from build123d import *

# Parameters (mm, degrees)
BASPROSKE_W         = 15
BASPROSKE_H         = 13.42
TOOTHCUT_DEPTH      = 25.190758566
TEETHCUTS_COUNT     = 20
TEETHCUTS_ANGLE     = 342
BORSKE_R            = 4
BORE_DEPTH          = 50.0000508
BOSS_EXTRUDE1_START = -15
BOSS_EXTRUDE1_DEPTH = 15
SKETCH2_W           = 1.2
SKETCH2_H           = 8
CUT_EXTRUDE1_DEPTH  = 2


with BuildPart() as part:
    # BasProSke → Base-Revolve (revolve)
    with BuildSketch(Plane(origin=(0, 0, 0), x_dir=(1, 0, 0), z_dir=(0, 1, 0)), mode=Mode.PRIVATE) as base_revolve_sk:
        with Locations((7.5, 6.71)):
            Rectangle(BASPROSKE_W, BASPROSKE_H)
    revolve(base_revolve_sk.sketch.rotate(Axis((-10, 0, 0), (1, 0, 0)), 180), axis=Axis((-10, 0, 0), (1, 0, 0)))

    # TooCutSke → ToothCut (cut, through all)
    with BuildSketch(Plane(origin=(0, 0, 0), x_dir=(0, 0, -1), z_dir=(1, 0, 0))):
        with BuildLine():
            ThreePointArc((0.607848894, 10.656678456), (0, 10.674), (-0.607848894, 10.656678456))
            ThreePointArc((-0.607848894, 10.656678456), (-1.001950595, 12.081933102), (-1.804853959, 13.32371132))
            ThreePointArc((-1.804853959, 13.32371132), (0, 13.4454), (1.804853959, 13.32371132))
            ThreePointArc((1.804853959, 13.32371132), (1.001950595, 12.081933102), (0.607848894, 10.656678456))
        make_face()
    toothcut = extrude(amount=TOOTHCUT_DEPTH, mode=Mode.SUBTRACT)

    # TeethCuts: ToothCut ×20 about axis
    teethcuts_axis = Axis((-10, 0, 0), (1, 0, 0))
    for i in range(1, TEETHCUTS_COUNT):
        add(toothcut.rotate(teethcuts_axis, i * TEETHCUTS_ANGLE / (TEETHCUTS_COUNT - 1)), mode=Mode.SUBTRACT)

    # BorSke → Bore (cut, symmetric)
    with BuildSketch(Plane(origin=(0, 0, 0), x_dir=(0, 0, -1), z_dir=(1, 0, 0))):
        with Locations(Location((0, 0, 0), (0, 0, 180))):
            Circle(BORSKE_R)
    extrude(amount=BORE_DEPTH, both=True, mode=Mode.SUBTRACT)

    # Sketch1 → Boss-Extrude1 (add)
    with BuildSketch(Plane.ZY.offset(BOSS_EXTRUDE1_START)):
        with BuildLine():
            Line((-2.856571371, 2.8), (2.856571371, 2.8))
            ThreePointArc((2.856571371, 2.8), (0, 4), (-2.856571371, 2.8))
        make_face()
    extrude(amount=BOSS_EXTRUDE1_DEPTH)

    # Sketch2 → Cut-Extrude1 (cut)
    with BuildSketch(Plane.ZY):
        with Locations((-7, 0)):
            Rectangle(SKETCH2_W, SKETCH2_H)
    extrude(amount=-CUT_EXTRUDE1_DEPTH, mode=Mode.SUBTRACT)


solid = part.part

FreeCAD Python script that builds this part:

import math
import FreeCAD as App
import Part
import Sketcher

V = App.Vector
Q = App.Units.Quantity

doc = App.newDocument("Part")
body = doc.addObject("PartDesign::Body", "Body")

# Sketch on XZ plane
sketch1 = body.newObject("Sketcher::SketchObject", "Sketch")
sketch1.AttachmentSupport = (doc.getObject("XZ_Plane"), [""])
sketch1.MapMode = "FlatFace"
sketch1.addGeometry(Part.LineSegment(V(0, -13, 0), V(0, 0, 0)), False)
sketch1.addGeometry(Part.LineSegment(V(0, 0, 0), V(15, 0, 0)), False)
sketch1.addGeometry(Part.LineSegment(V(15, 0, 0), V(15, -13, 0)), False)
sketch1.addGeometry(Part.LineSegment(V(15, -13, 0), V(0, -13, 0)), False)
sketch1.addConstraint(Sketcher.Constraint("Coincident", 0, 2, 1, 1))
sketch1.addConstraint(Sketcher.Constraint("Coincident", 1, 2, 2, 1))
sketch1.addConstraint(Sketcher.Constraint("Coincident", 2, 2, 3, 1))
sketch1.addConstraint(Sketcher.Constraint("Coincident", 3, 2, 0, 1))
sketch1.addConstraint(Sketcher.Constraint("Vertical", 0))
sketch1.addConstraint(Sketcher.Constraint("Horizontal", 1))
sketch1.addConstraint(Sketcher.Constraint("Vertical", 2))
sketch1.addConstraint(Sketcher.Constraint("Horizontal", 3))
sketch1.addConstraint(Sketcher.Constraint("Coincident", 0, 2, -1, 1))
sketch1.addConstraint(Sketcher.Constraint("DistanceX", 1, 1, 1, 2, Q("15 mm")))
sketch1.addConstraint(Sketcher.Constraint("DistanceY", 0, 1, 0, 2, Q("13.42 mm")))
revolution = body.newObject("PartDesign::Revolution", "Revolution")
revolution.Profile = sketch1
revolution.ReferenceAxis = (sketch1, ["H_Axis"])
revolution.Angle = 360

# Sketch on YZ plane
sketch2 = body.newObject("Sketcher::SketchObject", "Sketch001")
sketch2.AttachmentSupport = (doc.getObject("YZ_Plane"), [""])
sketch2.MapMode = "FlatFace"
sketch2.addGeometry(Part.ArcOfCircle(Part.Circle(V(0, 0, 0), V(0, 0, 1), 10.7), math.radians(-3.26), math.radians(3.26)), False)
sketch2.addGeometry(Part.ArcOfCircle(Part.Circle(V(10.1, -5.5, 0), V(0, 0, 1), 4.9), math.radians(48), math.radians(83)), False)
sketch2.addGeometry(Part.ArcOfCircle(Part.Circle(V(0, 0, 0), V(0, 0, 1), 13.4), math.radians(-7.71), math.radians(7.71)), False)
sketch2.addGeometry(Part.ArcOfCircle(Part.Circle(V(10.1, 5.5, 0), V(0, 0, 1), 4.9), math.radians(-83), math.radians(-48)), False)
sketch2.addConstraint(Sketcher.Constraint("Coincident", 0, 1, 1, 2))
sketch2.addConstraint(Sketcher.Constraint("Coincident", 1, 1, 2, 1))
sketch2.addConstraint(Sketcher.Constraint("Coincident", 2, 2, 3, 2))
sketch2.addConstraint(Sketcher.Constraint("Coincident", 3, 1, 0, 2))
sketch2.addConstraint(Sketcher.Constraint("Coincident", 0, 3, -1, 1))
sketch2.addConstraint(Sketcher.Constraint("Coincident", 2, 3, -1, 1))
sketch2.addConstraint(Sketcher.Constraint("Equal", 1, 3))
sketch2.addConstraint(Sketcher.Constraint("Symmetric", 1, 3, 3, 3, -1))
sketch2.addConstraint(Sketcher.Constraint("Radius", 1, Q("4.88 mm")))
sketch2.addConstraint(Sketcher.Constraint("Radius", 0, Q("10.674 mm")))
sketch2.addConstraint(Sketcher.Constraint("Radius", 2, Q("13.4454 mm")))
sketch2.addConstraint(Sketcher.Constraint("DistanceY", 1, 3, -1, 1, Q("5.454099 mm")))
sketch2.addConstraint(Sketcher.Constraint("DistanceX", -1, 1, 1, 3, Q("10.083741 mm")))
pocket1 = body.newObject("PartDesign::Pocket", "Pocket")
pocket1.Profile = sketch2
pocket1.Type = "ThroughAll"
pocket1.Reversed = True
doc.recompute()

polarpattern = body.newObject("PartDesign::PolarPattern", "PolarPattern")
polarpattern.Originals = [pocket1]
polarpattern.Axis = (doc.getObject("X_Axis"), [""])
polarpattern.Angle = 360
polarpattern.Occurrences = 20
body.Tip = polarpattern

# Sketch on YZ plane
sketch3 = body.newObject("Sketcher::SketchObject", "Sketch002")
sketch3.AttachmentSupport = (doc.getObject("YZ_Plane"), [""])
sketch3.MapMode = "FlatFace"
sketch3.addGeometry(Part.Circle(V(0, 0, 0), V(0, 0, 1), 4), False)
sketch3.addConstraint(Sketcher.Constraint("Coincident", 0, 3, -1, 1))
sketch3.addConstraint(Sketcher.Constraint("Diameter", 0, Q("8 mm")))
pocket2 = body.newObject("PartDesign::Pocket", "Pocket001")
pocket2.Profile = sketch3
pocket2.Length = 100.000102
pocket2.Midplane = True

# Sketch on YZ plane
sketch4 = body.newObject("Sketcher::SketchObject", "Sketch003")
sketch4.AttachmentSupport = (doc.getObject("YZ_Plane"), [""])
sketch4.MapMode = "FlatFace"
sketch4.AttachmentOffset = App.Placement(V(0, 0, 15), App.Rotation())
sketch4.addGeometry(Part.LineSegment(V(2.8, -2.9, 0), V(2.8, 2.9, 0)), False)
sketch4.addGeometry(Part.ArcOfCircle(Part.Circle(V(0, 0, 0), V(0, 0, 1), 4), math.radians(-46), math.radians(46)), False)
sketch4.addConstraint(Sketcher.Constraint("Coincident", 0, 1, 1, 1))
sketch4.addConstraint(Sketcher.Constraint("Coincident", 1, 2, 0, 2))
sketch4.addConstraint(Sketcher.Constraint("Vertical", 0))
sketch4.addConstraint(Sketcher.Constraint("Coincident", 1, 3, -1, 1))
sketch4.addConstraint(Sketcher.Constraint("Radius", 1, Q("4 mm")))
sketch4.addConstraint(Sketcher.Constraint("DistanceX", -1, 1, 0, 1, Q("2.8 mm")))
pad1 = body.newObject("PartDesign::Pad", "Pad")
pad1.Profile = sketch4
pad1.Length = 15
pad1.Reversed = True

# Sketch on YZ plane
sketch5 = body.newObject("Sketcher::SketchObject", "Sketch004")
sketch5.AttachmentSupport = (doc.getObject("YZ_Plane"), [""])
sketch5.MapMode = "FlatFace"
sketch5.addGeometry(Part.LineSegment(V(4, -7.6, 0), V(-4, -7.6, 0)), False)
sketch5.addGeometry(Part.LineSegment(V(-4, -7.6, 0), V(-4, -6.4, 0)), False)
sketch5.addGeometry(Part.LineSegment(V(-4, -6.4, 0), V(4, -6.4, 0)), False)
sketch5.addGeometry(Part.LineSegment(V(4, -6.4, 0), V(4, -7.6, 0)), False)
sketch5.addConstraint(Sketcher.Constraint("Coincident", 0, 2, 1, 1))
sketch5.addConstraint(Sketcher.Constraint("Coincident", 1, 2, 2, 1))
sketch5.addConstraint(Sketcher.Constraint("Coincident", 2, 2, 3, 1))
sketch5.addConstraint(Sketcher.Constraint("Coincident", 3, 2, 0, 1))
sketch5.addConstraint(Sketcher.Constraint("Horizontal", 0))
sketch5.addConstraint(Sketcher.Constraint("Vertical", 1))
sketch5.addConstraint(Sketcher.Constraint("Horizontal", 2))
sketch5.addConstraint(Sketcher.Constraint("Vertical", 3))
sketch5.addConstraint(Sketcher.Constraint("DistanceX", 0, 2, 0, 1, Q("8 mm")))
sketch5.addConstraint(Sketcher.Constraint("DistanceY", 1, 1, 1, 2, Q("1.2 mm")))
sketch5.addConstraint(Sketcher.Constraint("DistanceX", 0, 2, -1, 1, Q("4 mm")))
sketch5.addConstraint(Sketcher.Constraint("DistanceY", 0, 2, -1, 1, Q("7.6 mm")))
pocket3 = body.newObject("PartDesign::Pocket", "Pocket002")
pocket3.Profile = sketch5
pocket3.Length = 2
pocket3.Reversed = True

doc.recompute()
